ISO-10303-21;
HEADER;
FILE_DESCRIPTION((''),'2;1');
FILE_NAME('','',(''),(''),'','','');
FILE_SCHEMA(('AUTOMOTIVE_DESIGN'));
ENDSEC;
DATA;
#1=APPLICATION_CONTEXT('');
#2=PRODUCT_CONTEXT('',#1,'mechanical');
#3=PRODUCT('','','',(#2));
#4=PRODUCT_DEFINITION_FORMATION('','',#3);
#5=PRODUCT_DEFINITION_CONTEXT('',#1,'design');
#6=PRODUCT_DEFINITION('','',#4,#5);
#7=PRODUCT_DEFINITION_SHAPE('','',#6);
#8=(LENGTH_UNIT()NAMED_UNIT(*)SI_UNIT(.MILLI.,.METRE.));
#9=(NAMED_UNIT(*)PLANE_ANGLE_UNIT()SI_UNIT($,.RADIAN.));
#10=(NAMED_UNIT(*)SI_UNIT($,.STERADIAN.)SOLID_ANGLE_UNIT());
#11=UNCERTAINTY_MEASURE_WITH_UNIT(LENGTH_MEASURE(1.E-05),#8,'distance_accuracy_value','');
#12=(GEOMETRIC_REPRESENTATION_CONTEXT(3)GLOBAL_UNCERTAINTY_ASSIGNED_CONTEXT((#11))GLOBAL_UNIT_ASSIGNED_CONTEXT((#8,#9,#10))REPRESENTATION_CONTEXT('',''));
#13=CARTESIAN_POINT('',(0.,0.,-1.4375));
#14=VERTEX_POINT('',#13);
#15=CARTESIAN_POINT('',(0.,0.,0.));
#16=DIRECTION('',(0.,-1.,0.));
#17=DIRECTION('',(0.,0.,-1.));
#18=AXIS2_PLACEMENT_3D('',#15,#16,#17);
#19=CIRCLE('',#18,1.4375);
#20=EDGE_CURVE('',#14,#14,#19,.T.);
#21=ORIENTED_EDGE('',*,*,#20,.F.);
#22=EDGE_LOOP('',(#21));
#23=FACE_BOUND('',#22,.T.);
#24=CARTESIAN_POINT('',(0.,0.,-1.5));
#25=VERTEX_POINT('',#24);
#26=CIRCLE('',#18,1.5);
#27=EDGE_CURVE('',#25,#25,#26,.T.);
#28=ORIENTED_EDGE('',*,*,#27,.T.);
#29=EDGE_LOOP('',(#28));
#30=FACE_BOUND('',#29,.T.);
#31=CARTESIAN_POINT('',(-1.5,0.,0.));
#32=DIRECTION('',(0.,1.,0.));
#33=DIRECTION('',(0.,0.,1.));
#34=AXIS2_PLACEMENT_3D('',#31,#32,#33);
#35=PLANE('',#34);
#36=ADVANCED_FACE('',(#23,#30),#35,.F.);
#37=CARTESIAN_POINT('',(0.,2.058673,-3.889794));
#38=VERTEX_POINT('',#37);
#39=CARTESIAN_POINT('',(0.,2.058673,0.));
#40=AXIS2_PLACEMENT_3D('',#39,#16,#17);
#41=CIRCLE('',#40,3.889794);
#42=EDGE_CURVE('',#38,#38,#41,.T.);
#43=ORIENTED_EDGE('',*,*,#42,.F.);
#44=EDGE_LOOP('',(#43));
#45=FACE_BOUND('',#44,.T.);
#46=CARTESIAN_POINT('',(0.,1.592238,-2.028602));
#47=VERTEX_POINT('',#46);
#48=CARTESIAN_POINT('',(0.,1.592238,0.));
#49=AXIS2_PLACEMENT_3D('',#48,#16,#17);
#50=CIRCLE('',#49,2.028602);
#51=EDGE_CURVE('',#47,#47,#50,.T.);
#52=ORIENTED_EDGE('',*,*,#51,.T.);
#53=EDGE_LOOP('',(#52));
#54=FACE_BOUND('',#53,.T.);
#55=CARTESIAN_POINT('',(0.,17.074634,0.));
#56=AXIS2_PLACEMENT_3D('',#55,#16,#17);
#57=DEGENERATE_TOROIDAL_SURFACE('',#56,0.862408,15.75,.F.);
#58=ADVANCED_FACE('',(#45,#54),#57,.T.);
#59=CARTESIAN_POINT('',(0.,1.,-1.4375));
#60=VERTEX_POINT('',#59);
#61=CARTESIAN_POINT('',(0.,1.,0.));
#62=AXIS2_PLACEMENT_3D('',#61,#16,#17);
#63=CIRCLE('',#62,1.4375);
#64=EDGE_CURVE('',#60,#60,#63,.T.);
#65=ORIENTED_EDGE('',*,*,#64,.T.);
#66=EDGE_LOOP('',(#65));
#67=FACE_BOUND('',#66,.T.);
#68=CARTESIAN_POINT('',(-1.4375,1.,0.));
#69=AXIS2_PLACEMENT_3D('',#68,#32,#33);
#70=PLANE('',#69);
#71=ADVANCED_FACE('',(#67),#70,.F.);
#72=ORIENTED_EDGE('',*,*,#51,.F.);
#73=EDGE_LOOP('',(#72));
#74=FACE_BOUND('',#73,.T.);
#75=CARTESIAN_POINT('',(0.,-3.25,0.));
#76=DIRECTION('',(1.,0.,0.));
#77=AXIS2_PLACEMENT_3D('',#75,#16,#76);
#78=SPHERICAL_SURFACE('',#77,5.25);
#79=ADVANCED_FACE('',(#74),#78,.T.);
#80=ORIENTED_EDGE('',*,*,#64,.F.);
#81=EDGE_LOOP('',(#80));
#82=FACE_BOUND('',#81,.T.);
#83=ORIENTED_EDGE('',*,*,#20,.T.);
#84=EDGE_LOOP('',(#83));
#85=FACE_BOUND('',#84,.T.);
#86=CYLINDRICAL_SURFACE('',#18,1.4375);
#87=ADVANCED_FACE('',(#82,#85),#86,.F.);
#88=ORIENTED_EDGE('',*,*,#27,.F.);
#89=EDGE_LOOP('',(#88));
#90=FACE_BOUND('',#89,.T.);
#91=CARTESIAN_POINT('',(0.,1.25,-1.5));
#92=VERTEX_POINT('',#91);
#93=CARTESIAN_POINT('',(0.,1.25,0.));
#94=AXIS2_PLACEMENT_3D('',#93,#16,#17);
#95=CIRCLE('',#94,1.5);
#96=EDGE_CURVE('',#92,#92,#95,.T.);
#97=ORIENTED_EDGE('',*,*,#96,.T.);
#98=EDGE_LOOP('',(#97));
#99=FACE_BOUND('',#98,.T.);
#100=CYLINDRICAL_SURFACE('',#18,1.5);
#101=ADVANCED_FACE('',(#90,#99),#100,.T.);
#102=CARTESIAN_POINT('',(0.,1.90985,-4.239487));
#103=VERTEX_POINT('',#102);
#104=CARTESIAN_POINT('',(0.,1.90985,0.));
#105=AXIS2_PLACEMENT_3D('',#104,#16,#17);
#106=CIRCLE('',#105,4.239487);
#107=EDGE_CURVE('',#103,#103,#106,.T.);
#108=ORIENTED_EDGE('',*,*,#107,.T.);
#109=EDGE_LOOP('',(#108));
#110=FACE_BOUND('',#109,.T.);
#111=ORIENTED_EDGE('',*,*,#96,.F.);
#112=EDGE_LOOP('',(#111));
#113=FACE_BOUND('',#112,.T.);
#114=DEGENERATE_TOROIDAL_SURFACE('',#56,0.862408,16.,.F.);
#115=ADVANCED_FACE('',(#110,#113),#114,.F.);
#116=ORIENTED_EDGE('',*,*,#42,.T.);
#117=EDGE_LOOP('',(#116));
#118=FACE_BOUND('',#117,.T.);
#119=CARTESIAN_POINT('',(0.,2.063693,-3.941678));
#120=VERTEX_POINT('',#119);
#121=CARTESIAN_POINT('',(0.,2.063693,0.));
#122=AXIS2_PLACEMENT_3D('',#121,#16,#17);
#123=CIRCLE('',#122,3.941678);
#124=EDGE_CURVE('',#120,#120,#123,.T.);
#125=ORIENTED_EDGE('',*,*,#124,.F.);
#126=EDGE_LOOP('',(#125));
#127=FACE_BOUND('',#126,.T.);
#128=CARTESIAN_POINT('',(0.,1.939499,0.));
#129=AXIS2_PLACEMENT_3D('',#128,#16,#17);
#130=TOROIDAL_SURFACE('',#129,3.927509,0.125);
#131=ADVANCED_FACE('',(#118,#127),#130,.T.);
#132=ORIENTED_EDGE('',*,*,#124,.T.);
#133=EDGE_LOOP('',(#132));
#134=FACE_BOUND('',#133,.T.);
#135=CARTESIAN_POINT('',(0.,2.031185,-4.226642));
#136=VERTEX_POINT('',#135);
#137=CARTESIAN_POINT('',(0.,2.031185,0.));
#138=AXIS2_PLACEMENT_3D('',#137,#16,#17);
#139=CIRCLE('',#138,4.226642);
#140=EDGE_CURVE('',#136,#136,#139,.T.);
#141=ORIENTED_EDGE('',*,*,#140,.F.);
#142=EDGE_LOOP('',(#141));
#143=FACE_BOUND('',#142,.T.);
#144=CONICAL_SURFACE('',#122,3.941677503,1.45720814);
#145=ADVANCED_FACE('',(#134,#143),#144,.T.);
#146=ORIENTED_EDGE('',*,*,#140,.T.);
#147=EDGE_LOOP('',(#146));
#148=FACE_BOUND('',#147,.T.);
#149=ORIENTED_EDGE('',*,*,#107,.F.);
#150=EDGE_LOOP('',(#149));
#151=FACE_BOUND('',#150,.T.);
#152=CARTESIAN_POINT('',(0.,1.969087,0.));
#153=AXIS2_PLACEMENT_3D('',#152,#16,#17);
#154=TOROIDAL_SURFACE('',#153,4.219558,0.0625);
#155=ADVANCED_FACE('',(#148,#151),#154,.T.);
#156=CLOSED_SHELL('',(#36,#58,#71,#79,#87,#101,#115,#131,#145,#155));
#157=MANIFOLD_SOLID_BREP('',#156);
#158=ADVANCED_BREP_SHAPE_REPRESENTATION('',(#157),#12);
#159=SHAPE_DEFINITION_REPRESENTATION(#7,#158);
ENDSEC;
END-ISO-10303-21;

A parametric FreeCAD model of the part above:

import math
import FreeCAD as App
import Part
import Sketcher
Q = App.Units.Quantity

doc = App.newDocument("Part")
body = doc.addObject("PartDesign::Body", "Body")

sketch1 = body.newObject("Sketcher::SketchObject", "Sketch")
sketch1.AttachmentSupport = (doc.getObject("XY_Plane"), [""])
sketch1.MapMode = "FlatFace"
sketch1.addGeometry([
    Part.LineSegment(App.Vector(-1.5, 1.25, 0), App.Vector(-1.5, 0, 0)),
    Part.LineSegment(App.Vector(-1.5, 0, 0), App.Vector(-1.44, 0, 0)),
    Part.LineSegment(App.Vector(-1.44, 0, 0), App.Vector(-1.44, 1, 0)),
    Part.LineSegment(App.Vector(-1.44, 1, 0), App.Vector(0, 1, 0)),
    Part.LineSegment(App.Vector(0, 1, 0), App.Vector(0, 2, 0)),
    Part.ArcOfCircle(Part.Circle(App.Vector(0, -3.25, 0), App.Vector(0, 0, 1), 5.25), math.radians(90), math.radians(113)),
    Part.ArcOfCircle(Part.Circle(App.Vector(0.86, 17.07, 0), App.Vector(0, 0, 1), 15.75), math.radians(-107.56), math.radians(-100.58)),
    Part.ArcOfCircle(Part.Circle(App.Vector(-3.93, 1.94, 0), App.Vector(0, 0, 1), 0.13), math.radians(72), math.radians(97)),
    Part.LineSegment(App.Vector(-3.94, 2.06, 0), App.Vector(-4.23, 2.03, 0)),
    Part.ArcOfCircle(Part.Circle(App.Vector(-4.22, 1.97, 0), App.Vector(0, 0, 1), 0.06), math.radians(97), math.radians(251)),
    Part.ArcOfCircle(Part.Circle(App.Vector(0.86, 17.07, 0), App.Vector(0, 0, 1), 16), math.radians(-108.59), math.radians(-98.49)),
], False)
sketch1.addConstraint([
    Sketcher.Constraint("Coincident", 0, 2, 1, 1),
    Sketcher.Constraint("Coincident", 1, 2, 2, 1),
    Sketcher.Constraint("Coincident", 2, 2, 3, 1),
    Sketcher.Constraint("Coincident", 3, 2, 4, 1),
    Sketcher.Constraint("Coincident", 4, 2, 5, 1),
    Sketcher.Constraint("Coincident", 5, 2, 6, 2),
    Sketcher.Constraint("Tangent", 6, 1, 7, 1),
    Sketcher.Constraint("Tangent", 7, 2, 8, 1),
    Sketcher.Constraint("Tangent", 8, 2, 9, 1),
    Sketcher.Constraint("Tangent", 9, 2, 10, 1),
    Sketcher.Constraint("Coincident", 10, 2, 0, 1),
    Sketcher.Constraint("Vertical", 0),
    Sketcher.Constraint("Horizontal", 1),
    Sketcher.Constraint("Vertical", 2),
    Sketcher.Constraint("Horizontal", 3),
    Sketcher.Constraint("Vertical", 4),
    Sketcher.Constraint("Coincident", 10, 3, 6, 3),
    Sketcher.Constraint("PointOnObject", 5, 3, -2),
    Sketcher.Constraint("PointOnObject", 0, 2, -1),
    Sketcher.Constraint("PointOnObject", 3, 2, -2),
    Sketcher.Constraint("Equal", 2, 4),
    Sketcher.Constraint("Radius", 10, Q("16 mm")),
    Sketcher.Constraint("DistanceY", 2, 1, 2, 2, Q("1 mm")),
    Sketcher.Constraint("Radius", 5, Q("5.25 mm")),
    Sketcher.Constraint("Radius", 6, Q("15.75 mm")),
    Sketcher.Constraint("Radius", 7, Q("0.125 mm")),
    Sketcher.Constraint("DistanceY", 0, 2, 0, 1, Q("1.25 mm")),
    Sketcher.Constraint("DistanceX", 0, 2, -1, 1, Q("1.5 mm")),
    Sketcher.Constraint("Radius", 9, Q("0.0625 mm")),
    Sketcher.Constraint("DistanceX", 1, 1, 1, 2, Q("0.0625 mm")),
    Sketcher.Constraint("DistanceY", -1, 1, 7, 3, Q("1.939499 mm")),
    Sketcher.Constraint("DistanceX", -1, 1, 6, 3, Q("0.862408 mm")),
    Sketcher.Constraint("DistanceX", 8, 2, -1, 1, Q("4.226642 mm")),
])
revolution = body.newObject("PartDesign::Revolution", "Revolution")
revolution.Profile = sketch1
revolution.ReferenceAxis = (sketch1, ["V_Axis"])
revolution.Angle = 360

doc.recompute()
